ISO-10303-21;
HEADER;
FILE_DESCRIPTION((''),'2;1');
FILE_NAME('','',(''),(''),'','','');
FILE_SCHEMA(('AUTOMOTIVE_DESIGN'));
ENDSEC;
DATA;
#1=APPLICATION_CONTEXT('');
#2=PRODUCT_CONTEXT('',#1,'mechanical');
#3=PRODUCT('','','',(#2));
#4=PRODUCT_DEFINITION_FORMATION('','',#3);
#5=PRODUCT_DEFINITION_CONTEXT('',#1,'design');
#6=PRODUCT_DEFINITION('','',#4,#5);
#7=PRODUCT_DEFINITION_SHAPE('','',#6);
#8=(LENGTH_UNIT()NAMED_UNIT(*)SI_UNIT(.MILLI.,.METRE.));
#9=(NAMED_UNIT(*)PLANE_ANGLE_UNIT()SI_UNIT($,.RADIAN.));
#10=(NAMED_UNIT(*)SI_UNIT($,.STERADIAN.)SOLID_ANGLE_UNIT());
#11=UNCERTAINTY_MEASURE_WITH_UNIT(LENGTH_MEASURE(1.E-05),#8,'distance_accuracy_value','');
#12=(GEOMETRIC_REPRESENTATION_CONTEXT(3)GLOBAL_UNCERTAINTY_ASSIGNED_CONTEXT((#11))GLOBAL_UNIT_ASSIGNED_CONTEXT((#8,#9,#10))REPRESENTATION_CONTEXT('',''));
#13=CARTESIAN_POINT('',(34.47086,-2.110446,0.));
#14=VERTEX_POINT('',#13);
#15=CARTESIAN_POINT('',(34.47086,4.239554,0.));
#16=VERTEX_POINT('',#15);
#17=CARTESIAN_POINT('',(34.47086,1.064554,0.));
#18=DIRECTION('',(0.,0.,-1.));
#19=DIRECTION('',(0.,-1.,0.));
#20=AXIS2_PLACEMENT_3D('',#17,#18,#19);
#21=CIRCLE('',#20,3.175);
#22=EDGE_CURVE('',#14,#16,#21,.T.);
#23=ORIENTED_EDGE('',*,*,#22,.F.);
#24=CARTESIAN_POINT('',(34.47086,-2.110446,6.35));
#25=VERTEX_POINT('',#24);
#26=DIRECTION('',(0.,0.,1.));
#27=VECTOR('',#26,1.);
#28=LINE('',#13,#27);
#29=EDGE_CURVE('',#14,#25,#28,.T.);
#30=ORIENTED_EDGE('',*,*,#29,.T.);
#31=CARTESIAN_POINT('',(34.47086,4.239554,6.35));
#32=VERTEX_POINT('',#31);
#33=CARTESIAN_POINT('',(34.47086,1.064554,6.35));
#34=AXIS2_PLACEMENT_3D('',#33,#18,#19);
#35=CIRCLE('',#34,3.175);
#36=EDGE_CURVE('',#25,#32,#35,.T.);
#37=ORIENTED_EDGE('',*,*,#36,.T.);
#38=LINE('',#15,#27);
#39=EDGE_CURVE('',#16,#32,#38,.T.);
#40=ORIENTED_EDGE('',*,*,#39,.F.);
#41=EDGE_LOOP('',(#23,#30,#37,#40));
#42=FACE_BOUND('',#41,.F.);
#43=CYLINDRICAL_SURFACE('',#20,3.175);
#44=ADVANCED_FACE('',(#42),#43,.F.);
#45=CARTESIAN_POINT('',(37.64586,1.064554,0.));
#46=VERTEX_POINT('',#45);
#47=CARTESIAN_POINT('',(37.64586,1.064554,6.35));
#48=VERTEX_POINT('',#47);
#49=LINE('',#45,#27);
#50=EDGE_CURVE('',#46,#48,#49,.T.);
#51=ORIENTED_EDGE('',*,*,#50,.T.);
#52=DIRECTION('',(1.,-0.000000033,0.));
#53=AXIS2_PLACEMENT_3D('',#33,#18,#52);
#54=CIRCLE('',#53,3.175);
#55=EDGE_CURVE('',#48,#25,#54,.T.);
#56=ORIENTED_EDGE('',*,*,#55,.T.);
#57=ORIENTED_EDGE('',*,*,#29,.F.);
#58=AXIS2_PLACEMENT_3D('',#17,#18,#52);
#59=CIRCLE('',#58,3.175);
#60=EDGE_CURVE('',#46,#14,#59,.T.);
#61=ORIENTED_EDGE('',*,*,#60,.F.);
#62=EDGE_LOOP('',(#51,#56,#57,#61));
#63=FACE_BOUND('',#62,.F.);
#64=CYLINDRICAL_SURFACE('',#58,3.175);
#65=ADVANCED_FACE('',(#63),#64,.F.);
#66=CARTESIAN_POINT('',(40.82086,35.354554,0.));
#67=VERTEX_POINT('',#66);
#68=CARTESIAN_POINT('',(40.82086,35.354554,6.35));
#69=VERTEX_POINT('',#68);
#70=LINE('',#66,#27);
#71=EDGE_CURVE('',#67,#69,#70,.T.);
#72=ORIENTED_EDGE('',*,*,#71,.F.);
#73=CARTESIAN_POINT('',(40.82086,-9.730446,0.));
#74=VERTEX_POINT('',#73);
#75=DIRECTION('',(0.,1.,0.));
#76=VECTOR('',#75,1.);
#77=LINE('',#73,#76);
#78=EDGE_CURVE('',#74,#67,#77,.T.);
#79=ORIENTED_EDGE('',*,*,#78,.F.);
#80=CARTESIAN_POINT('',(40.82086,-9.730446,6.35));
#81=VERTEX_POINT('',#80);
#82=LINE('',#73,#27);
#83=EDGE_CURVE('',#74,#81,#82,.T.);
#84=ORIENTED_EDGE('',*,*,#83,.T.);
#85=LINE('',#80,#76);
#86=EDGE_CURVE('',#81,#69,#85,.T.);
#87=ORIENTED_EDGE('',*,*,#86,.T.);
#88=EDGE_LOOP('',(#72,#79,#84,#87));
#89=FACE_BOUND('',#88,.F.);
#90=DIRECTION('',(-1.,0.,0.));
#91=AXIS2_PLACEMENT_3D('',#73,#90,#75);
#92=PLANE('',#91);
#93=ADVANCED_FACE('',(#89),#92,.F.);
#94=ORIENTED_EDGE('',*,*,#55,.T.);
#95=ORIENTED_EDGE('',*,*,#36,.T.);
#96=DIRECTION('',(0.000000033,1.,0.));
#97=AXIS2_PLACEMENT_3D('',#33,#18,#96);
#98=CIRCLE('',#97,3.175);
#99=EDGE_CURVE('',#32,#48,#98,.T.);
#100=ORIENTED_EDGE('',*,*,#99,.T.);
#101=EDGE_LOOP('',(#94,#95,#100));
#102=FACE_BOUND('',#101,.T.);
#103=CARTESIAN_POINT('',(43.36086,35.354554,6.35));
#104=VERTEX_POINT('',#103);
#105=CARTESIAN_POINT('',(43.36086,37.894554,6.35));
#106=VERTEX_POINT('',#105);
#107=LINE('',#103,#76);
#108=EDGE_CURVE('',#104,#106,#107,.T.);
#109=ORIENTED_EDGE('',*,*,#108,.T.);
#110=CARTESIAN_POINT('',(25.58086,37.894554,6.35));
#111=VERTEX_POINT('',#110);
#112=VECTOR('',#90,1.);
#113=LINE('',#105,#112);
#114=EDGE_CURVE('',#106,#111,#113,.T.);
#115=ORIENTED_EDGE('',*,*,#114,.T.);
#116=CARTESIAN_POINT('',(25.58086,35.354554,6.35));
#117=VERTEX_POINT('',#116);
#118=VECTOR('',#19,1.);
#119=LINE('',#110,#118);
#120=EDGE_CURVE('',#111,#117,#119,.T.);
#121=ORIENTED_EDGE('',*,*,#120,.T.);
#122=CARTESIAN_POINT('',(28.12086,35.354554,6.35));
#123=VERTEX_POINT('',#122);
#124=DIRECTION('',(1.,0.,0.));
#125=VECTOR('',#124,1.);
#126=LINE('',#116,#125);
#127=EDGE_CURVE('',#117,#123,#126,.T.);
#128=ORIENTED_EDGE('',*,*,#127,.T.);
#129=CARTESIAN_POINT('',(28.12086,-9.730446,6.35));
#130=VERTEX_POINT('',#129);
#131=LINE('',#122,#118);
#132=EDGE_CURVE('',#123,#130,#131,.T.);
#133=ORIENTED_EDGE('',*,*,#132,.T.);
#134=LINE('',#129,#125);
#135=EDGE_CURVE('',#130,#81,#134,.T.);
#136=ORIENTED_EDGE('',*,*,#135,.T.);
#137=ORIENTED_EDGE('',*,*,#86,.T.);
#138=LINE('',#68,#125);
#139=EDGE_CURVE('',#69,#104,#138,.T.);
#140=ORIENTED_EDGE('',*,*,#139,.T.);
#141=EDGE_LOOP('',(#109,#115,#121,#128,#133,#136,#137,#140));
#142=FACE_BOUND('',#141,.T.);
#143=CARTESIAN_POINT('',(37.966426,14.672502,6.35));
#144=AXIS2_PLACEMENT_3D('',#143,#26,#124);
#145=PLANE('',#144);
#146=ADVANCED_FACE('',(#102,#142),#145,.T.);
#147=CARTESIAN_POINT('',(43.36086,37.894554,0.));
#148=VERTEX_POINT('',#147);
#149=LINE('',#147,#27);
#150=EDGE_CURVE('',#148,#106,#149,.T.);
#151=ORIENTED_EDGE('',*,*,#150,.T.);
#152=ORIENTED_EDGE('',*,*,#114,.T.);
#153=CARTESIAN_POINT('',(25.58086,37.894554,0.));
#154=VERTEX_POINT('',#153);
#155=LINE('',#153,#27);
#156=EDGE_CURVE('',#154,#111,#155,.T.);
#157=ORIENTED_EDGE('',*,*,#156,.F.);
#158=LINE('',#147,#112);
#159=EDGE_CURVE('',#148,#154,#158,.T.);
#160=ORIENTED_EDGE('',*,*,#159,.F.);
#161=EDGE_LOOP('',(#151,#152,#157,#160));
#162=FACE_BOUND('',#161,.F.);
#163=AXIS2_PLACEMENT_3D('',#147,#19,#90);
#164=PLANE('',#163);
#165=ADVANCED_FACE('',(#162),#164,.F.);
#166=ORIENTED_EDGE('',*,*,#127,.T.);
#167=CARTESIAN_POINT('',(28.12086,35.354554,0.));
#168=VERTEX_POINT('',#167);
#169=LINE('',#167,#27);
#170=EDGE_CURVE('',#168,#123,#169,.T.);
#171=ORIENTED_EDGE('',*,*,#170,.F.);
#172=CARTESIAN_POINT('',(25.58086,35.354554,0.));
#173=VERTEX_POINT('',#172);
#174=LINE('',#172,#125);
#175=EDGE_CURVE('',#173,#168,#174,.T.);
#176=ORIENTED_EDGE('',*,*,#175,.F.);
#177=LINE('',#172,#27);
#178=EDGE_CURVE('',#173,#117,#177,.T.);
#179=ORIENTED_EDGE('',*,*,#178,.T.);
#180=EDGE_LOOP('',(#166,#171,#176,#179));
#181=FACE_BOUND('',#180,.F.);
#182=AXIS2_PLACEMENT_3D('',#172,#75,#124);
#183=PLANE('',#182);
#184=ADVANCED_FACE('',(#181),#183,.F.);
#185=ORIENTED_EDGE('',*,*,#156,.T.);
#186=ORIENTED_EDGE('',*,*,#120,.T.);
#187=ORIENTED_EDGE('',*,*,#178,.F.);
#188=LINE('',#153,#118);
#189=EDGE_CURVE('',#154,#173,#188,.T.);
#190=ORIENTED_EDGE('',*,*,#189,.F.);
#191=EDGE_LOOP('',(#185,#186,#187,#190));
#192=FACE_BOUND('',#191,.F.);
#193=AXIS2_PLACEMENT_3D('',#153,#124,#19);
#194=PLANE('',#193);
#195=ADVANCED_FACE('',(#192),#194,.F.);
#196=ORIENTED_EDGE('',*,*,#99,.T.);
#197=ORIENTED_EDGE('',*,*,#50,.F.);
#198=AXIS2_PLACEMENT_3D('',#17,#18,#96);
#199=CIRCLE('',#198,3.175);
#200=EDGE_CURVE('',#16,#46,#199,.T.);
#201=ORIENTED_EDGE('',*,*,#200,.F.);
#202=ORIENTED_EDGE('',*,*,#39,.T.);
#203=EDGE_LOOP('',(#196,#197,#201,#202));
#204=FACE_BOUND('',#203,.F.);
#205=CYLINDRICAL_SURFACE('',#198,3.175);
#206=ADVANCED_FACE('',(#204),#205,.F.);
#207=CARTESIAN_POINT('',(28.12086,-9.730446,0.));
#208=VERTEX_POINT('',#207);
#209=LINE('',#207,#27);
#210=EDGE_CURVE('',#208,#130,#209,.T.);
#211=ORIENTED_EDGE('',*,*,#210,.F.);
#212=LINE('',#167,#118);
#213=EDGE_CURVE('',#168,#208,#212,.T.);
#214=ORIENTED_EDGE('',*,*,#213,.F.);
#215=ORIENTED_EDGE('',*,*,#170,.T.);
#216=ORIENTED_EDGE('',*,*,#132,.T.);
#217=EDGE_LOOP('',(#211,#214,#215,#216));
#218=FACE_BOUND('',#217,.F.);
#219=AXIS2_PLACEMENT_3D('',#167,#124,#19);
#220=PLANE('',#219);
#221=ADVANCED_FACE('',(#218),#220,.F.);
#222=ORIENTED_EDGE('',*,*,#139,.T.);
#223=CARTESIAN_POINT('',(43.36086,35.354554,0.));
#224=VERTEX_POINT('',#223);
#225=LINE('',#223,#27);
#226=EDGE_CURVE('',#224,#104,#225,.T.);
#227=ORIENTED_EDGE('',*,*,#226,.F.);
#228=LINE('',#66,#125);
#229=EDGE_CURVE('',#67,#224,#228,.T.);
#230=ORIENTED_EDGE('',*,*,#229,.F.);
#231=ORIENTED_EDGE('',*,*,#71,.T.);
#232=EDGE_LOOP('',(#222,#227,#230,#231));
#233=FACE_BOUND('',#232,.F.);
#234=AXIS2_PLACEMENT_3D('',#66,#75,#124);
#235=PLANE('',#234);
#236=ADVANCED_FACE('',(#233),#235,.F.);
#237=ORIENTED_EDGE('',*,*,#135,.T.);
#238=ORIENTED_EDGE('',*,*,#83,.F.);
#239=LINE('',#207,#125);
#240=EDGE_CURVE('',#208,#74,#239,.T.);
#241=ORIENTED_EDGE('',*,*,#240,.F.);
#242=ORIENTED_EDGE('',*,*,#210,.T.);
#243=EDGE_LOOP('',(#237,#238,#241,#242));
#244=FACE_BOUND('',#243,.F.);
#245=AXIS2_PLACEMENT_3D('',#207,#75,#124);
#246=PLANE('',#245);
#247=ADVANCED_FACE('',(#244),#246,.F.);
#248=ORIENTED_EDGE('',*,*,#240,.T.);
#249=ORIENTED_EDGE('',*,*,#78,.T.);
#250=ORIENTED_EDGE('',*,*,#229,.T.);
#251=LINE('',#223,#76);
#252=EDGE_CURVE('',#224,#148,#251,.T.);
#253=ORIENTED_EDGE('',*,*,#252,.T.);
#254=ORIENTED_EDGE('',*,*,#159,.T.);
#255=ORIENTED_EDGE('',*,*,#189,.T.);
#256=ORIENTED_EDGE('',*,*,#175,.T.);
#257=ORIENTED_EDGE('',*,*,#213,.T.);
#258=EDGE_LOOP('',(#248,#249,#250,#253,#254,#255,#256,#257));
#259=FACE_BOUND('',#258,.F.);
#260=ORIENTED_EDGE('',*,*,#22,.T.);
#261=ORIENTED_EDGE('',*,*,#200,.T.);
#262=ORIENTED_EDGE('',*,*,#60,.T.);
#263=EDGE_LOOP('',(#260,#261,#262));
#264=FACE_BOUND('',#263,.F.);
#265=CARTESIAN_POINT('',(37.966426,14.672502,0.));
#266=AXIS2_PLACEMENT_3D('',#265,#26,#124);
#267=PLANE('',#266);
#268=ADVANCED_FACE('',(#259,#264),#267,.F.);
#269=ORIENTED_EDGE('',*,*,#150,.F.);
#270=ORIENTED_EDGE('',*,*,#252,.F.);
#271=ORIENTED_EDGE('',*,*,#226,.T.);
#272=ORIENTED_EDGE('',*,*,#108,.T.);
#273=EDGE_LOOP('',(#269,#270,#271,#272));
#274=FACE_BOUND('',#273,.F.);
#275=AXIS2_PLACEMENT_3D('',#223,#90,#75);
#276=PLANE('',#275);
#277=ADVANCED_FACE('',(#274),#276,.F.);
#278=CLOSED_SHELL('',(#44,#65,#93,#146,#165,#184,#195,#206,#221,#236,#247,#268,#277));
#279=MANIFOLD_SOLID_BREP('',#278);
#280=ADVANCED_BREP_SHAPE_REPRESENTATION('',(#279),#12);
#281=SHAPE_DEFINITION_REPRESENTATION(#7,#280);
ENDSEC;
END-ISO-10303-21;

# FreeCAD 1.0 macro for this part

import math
import FreeCAD as App
import Part
import Sketcher
Q = App.Units.Quantity


def add_polygon(sketch, points):
    """Adds a closed chain of lines whose ends are joined by coincident constraints."""
    first, n = sketch.GeometryCount, len(points)
    for a, b in zip(points, points[1:] + points[:1]):
        sketch.addGeometry(Part.LineSegment(App.Vector(*a, 0), App.Vector(*b, 0)), False)
    for i in range(n):
        sketch.addConstraint(Sketcher.Constraint("Coincident", first + i, 2, first + (i + 1) % n, 1))

doc = App.newDocument("Part")
body = doc.addObject("PartDesign::Body", "Body")

sketch1 = doc.addObject("Sketcher::SketchObject", "Sketch")
body.addObject(sketch1)
sketch1.AttachmentSupport = (doc.XY_Plane, [""])
sketch1.MapMode = "FlatFace"
add_polygon(sketch1, [(40.82086, -9.730446), (40.82086, 35.354554), (43.36086, 35.354554), (43.36086, 37.894554), (25.58086, 37.894554), (25.58086, 35.354554), (28.12086, 35.354554), (28.12086, -9.730446)])
sketch1.addGeometry(Part.ArcOfCircle(Part.Circle(App.Vector(34.47086, 1.064554, 0), App.Vector(0, 0, 1), 3.175), math.radians(0.000002), math.radians(89.999998)), False)
sketch1.addGeometry(Part.ArcOfCircle(Part.Circle(App.Vector(34.47086, 1.064554, 0), App.Vector(0, 0, 1), 3.175), math.radians(-89.999998), math.radians(-0.000002)), False)
sketch1.addGeometry(Part.ArcOfCircle(Part.Circle(App.Vector(34.47086, 1.064554, 0), App.Vector(0, 0, 1), 3.175), math.radians(90), math.radians(270)), False)
sketch1.addConstraint(Sketcher.Constraint("Tangent", 8, 1, 9, 2))
sketch1.addConstraint(Sketcher.Constraint("Tangent", 9, 1, 10, 2))
sketch1.addConstraint(Sketcher.Constraint("Tangent", 10, 1, 8, 2))
sketch1.addConstraint(Sketcher.Constraint("Vertical", 0))
sketch1.addConstraint(Sketcher.Constraint("Horizontal", 1))
sketch1.addConstraint(Sketcher.Constraint("Vertical", 2))
sketch1.addConstraint(Sketcher.Constraint("Horizontal", 3))
sketch1.addConstraint(Sketcher.Constraint("Vertical", 4))
sketch1.addConstraint(Sketcher.Constraint("Horizontal", 5))
sketch1.addConstraint(Sketcher.Constraint("Vertical", 6))
sketch1.addConstraint(Sketcher.Constraint("Horizontal", 7))
sketch1.addConstraint(Sketcher.Constraint("Horizontal", 1, 2, 4, 2))
sketch1.addConstraint(Sketcher.Constraint("Horizontal", 10, 3, 8, 1))
sketch1.addConstraint(Sketcher.Constraint("Vertical", 10, 3, 9, 1))
sketch1.addConstraint(Sketcher.Constraint("Vertical", 9, 1, 10, 1))
sketch1.addConstraint(Sketcher.Constraint("Equal", 1, 5))
sketch1.addConstraint(Sketcher.Constraint("Equal", 5, 2))
sketch1.addConstraint(Sketcher.Constraint("DistanceX", 1, 1, 1, 2, Q("0.1 in")))
sketch1.addConstraint(Sketcher.Constraint("DistanceX", 3, 2, 3, 1, Q("0.7 in")))
sketch1.addConstraint(Sketcher.Constraint("Radius", 8, Q("0.125 in")))
sketch1.addConstraint(Sketcher.Constraint("DistanceY", 6, 2, 9, 1, Q("0.3 in")))
sketch1.addConstraint(Sketcher.Constraint("DistanceY", 0, 1, 0, 2, Q("1.775 in")))
sketch1.addConstraint(Sketcher.Constraint("DistanceX", 9, 3, 0, 2, Q("0.25 in")))
sketch1.addConstraint(Sketcher.Constraint("DistanceX", -1, 1, 8, 3, 34.47086))
sketch1.addConstraint(Sketcher.Constraint("DistanceY", -1, 1, 8, 3, 1.064554))
pad1 = doc.addObject("PartDesign::Pad", "Pad")
body.addObject(pad1)
pad1.Profile = sketch1
pad1.Length = Q("0.25 in")

doc.recompute()
